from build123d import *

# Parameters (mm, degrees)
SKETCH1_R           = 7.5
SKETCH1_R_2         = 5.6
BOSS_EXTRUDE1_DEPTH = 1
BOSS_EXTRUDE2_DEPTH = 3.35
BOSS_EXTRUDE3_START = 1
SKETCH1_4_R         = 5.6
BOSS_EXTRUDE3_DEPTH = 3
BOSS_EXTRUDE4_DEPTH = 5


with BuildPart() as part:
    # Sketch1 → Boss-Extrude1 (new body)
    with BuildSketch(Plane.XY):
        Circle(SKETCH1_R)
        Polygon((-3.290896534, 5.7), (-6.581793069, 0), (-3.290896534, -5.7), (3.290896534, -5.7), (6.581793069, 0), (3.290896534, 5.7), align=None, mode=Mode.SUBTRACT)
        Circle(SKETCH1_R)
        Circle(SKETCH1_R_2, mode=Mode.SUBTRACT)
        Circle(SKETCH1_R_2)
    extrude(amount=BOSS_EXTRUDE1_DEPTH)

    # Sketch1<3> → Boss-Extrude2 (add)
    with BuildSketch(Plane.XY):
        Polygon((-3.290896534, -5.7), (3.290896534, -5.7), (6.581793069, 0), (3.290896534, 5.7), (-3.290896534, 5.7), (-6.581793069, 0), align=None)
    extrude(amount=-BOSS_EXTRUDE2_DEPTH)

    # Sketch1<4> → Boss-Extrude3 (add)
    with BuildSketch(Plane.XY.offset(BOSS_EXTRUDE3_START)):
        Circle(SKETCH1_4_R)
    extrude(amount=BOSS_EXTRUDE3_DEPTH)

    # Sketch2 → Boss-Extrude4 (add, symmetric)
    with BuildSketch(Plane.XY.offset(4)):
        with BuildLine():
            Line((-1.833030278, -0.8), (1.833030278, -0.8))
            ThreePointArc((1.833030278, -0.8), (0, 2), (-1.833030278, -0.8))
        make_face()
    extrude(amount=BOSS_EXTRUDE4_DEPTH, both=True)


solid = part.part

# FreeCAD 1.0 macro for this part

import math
import FreeCAD as App
import Part
import Sketcher
from FreeCAD import Vector
Q = App.Units.Quantity

doc = App.newDocument("Part")
body = doc.addObject("PartDesign::Body", "Body")

sketch1 = body.newObject("Sketcher::SketchObject", "Sketch")
sketch1.AttachmentSupport = (doc.getObject("XY_Plane"), [""])
sketch1.MapMode = "FlatFace"
sketch1.addGeometry(Part.Circle(Vector(0, 0, 0), Vector(0, 0, 1), 8), False)
sketch1.addConstraint(Sketcher.Constraint("Coincident", 0, 3, -1, 1))
sketch1.addConstraint(Sketcher.Constraint("Diameter", 0, 15.0))
pad1 = body.newObject("PartDesign::Pad", "Pad")
pad1.Profile = sketch1
pad1.Length = 1

sketch2 = body.newObject("Sketcher::SketchObject", "Sketch001")
sketch2.AttachmentSupport = (doc.getObject("XY_Plane"), [""])
sketch2.MapMode = "FlatFace"
sketch2.addGeometry(Part.LineSegment(Vector(-3, -6, 0), Vector(3, -6, 0)), False)
sketch2.addGeometry(Part.LineSegment(Vector(3, -6, 0), Vector(7, 0, 0)), False)
sketch2.addGeometry(Part.LineSegment(Vector(7, 0, 0), Vector(3, 6, 0)), False)
sketch2.addGeometry(Part.LineSegment(Vector(3, 6, 0), Vector(-3, 6, 0)), False)
sketch2.addGeometry(Part.LineSegment(Vector(-3, 6, 0), Vector(-7, 0, 0)), False)
sketch2.addGeometry(Part.LineSegment(Vector(-7, 0, 0), Vector(-3, -6, 0)), False)
sketch2.addConstraint(Sketcher.Constraint("Coincident", 0, 2, 1, 1))
sketch2.addConstraint(Sketcher.Constraint("Coincident", 1, 2, 2, 1))
sketch2.addConstraint(Sketcher.Constraint("Coincident", 2, 2, 3, 1))
sketch2.addConstraint(Sketcher.Constraint("Coincident", 3, 2, 4, 1))
sketch2.addConstraint(Sketcher.Constraint("Coincident", 4, 2, 5, 1))
sketch2.addConstraint(Sketcher.Constraint("Coincident", 5, 2, 0, 1))
sketch2.addConstraint(Sketcher.Constraint("Horizontal", 0))
sketch2.addConstraint(Sketcher.Constraint("Horizontal", 3))
sketch2.addConstraint(Sketcher.Constraint("Symmetric", 0, 2, 3, 2, -1, 1))
sketch2.addConstraint(Sketcher.Constraint("Symmetric", 1, 2, 4, 2, -1, 1))
sketch2.addConstraint(Sketcher.Constraint("PointOnObject", 1, 2, -1))
sketch2.addConstraint(Sketcher.Constraint("Parallel", 2, 5))
sketch2.addConstraint(Sketcher.Constraint("Vertical", 0, 2, 2, 2))
sketch2.addConstraint(Sketcher.Constraint("Angle", 1, Q("60 deg")))
sketch2.addConstraint(Sketcher.Constraint("DistanceY", 0, 2, -1, 1, 5.7))
sketch2.addConstraint(Sketcher.Constraint("DistanceX", 0, 1, 0, 2, 6.581793))
pad2 = body.newObject("PartDesign::Pad", "Pad001")
pad2.Profile = sketch2
pad2.Length = 3.35
pad2.Reversed = True

sketch3 = body.newObject("Sketcher::SketchObject", "Sketch002")
sketch3.AttachmentSupport = (doc.getObject("XY_Plane"), [""])
sketch3.MapMode = "FlatFace"
sketch3.AttachmentOffset = App.Placement(Vector(0, 0, 1), App.Rotation())
sketch3.addGeometry(Part.Circle(Vector(0, 0, 0), Vector(0, 0, 1), 6), False)
sketch3.addConstraint(Sketcher.Constraint("Coincident", 0, 3, -1, 1))
sketch3.addConstraint(Sketcher.Constraint("Diameter", 0, 11.2))
pad3 = body.newObject("PartDesign::Pad", "Pad002")
pad3.Profile = sketch3
pad3.Length = 3

sketch4 = body.newObject("Sketcher::SketchObject", "Sketch003")
sketch4.AttachmentSupport = (doc.getObject("XY_Plane"), [""])
sketch4.MapMode = "FlatFace"
sketch4.AttachmentOffset = App.Placement(Vector(0, 0, 4), App.Rotation())
sketch4.addGeometry(Part.LineSegment(Vector(-1.8, -0.8, 0), Vector(1.8, -0.8, 0)), False)
sketch4.addGeometry(Part.ArcOfCircle(Part.Circle(Vector(0, 0, 0), Vector(0, 0, 1), 2), math.radians(-24), math.radians(204)), False)
sketch4.addConstraint(Sketcher.Constraint("Coincident", 0, 1, 1, 2))
sketch4.addConstraint(Sketcher.Constraint("Coincident", 1, 1, 0, 2))
sketch4.addConstraint(Sketcher.Constraint("Horizontal", 0))
sketch4.addConstraint(Sketcher.Constraint("Coincident", 1, 3, -1, 1))
sketch4.addConstraint(Sketcher.Constraint("Radius", 1, 2.0))
sketch4.addConstraint(Sketcher.Constraint("DistanceY", 0, 1, -1, 1, 0.8))
pad4 = body.newObject("PartDesign::Pad", "Pad003")
pad4.Profile = sketch4
pad4.Length = 10
pad4.Midplane = True

doc.recompute()
